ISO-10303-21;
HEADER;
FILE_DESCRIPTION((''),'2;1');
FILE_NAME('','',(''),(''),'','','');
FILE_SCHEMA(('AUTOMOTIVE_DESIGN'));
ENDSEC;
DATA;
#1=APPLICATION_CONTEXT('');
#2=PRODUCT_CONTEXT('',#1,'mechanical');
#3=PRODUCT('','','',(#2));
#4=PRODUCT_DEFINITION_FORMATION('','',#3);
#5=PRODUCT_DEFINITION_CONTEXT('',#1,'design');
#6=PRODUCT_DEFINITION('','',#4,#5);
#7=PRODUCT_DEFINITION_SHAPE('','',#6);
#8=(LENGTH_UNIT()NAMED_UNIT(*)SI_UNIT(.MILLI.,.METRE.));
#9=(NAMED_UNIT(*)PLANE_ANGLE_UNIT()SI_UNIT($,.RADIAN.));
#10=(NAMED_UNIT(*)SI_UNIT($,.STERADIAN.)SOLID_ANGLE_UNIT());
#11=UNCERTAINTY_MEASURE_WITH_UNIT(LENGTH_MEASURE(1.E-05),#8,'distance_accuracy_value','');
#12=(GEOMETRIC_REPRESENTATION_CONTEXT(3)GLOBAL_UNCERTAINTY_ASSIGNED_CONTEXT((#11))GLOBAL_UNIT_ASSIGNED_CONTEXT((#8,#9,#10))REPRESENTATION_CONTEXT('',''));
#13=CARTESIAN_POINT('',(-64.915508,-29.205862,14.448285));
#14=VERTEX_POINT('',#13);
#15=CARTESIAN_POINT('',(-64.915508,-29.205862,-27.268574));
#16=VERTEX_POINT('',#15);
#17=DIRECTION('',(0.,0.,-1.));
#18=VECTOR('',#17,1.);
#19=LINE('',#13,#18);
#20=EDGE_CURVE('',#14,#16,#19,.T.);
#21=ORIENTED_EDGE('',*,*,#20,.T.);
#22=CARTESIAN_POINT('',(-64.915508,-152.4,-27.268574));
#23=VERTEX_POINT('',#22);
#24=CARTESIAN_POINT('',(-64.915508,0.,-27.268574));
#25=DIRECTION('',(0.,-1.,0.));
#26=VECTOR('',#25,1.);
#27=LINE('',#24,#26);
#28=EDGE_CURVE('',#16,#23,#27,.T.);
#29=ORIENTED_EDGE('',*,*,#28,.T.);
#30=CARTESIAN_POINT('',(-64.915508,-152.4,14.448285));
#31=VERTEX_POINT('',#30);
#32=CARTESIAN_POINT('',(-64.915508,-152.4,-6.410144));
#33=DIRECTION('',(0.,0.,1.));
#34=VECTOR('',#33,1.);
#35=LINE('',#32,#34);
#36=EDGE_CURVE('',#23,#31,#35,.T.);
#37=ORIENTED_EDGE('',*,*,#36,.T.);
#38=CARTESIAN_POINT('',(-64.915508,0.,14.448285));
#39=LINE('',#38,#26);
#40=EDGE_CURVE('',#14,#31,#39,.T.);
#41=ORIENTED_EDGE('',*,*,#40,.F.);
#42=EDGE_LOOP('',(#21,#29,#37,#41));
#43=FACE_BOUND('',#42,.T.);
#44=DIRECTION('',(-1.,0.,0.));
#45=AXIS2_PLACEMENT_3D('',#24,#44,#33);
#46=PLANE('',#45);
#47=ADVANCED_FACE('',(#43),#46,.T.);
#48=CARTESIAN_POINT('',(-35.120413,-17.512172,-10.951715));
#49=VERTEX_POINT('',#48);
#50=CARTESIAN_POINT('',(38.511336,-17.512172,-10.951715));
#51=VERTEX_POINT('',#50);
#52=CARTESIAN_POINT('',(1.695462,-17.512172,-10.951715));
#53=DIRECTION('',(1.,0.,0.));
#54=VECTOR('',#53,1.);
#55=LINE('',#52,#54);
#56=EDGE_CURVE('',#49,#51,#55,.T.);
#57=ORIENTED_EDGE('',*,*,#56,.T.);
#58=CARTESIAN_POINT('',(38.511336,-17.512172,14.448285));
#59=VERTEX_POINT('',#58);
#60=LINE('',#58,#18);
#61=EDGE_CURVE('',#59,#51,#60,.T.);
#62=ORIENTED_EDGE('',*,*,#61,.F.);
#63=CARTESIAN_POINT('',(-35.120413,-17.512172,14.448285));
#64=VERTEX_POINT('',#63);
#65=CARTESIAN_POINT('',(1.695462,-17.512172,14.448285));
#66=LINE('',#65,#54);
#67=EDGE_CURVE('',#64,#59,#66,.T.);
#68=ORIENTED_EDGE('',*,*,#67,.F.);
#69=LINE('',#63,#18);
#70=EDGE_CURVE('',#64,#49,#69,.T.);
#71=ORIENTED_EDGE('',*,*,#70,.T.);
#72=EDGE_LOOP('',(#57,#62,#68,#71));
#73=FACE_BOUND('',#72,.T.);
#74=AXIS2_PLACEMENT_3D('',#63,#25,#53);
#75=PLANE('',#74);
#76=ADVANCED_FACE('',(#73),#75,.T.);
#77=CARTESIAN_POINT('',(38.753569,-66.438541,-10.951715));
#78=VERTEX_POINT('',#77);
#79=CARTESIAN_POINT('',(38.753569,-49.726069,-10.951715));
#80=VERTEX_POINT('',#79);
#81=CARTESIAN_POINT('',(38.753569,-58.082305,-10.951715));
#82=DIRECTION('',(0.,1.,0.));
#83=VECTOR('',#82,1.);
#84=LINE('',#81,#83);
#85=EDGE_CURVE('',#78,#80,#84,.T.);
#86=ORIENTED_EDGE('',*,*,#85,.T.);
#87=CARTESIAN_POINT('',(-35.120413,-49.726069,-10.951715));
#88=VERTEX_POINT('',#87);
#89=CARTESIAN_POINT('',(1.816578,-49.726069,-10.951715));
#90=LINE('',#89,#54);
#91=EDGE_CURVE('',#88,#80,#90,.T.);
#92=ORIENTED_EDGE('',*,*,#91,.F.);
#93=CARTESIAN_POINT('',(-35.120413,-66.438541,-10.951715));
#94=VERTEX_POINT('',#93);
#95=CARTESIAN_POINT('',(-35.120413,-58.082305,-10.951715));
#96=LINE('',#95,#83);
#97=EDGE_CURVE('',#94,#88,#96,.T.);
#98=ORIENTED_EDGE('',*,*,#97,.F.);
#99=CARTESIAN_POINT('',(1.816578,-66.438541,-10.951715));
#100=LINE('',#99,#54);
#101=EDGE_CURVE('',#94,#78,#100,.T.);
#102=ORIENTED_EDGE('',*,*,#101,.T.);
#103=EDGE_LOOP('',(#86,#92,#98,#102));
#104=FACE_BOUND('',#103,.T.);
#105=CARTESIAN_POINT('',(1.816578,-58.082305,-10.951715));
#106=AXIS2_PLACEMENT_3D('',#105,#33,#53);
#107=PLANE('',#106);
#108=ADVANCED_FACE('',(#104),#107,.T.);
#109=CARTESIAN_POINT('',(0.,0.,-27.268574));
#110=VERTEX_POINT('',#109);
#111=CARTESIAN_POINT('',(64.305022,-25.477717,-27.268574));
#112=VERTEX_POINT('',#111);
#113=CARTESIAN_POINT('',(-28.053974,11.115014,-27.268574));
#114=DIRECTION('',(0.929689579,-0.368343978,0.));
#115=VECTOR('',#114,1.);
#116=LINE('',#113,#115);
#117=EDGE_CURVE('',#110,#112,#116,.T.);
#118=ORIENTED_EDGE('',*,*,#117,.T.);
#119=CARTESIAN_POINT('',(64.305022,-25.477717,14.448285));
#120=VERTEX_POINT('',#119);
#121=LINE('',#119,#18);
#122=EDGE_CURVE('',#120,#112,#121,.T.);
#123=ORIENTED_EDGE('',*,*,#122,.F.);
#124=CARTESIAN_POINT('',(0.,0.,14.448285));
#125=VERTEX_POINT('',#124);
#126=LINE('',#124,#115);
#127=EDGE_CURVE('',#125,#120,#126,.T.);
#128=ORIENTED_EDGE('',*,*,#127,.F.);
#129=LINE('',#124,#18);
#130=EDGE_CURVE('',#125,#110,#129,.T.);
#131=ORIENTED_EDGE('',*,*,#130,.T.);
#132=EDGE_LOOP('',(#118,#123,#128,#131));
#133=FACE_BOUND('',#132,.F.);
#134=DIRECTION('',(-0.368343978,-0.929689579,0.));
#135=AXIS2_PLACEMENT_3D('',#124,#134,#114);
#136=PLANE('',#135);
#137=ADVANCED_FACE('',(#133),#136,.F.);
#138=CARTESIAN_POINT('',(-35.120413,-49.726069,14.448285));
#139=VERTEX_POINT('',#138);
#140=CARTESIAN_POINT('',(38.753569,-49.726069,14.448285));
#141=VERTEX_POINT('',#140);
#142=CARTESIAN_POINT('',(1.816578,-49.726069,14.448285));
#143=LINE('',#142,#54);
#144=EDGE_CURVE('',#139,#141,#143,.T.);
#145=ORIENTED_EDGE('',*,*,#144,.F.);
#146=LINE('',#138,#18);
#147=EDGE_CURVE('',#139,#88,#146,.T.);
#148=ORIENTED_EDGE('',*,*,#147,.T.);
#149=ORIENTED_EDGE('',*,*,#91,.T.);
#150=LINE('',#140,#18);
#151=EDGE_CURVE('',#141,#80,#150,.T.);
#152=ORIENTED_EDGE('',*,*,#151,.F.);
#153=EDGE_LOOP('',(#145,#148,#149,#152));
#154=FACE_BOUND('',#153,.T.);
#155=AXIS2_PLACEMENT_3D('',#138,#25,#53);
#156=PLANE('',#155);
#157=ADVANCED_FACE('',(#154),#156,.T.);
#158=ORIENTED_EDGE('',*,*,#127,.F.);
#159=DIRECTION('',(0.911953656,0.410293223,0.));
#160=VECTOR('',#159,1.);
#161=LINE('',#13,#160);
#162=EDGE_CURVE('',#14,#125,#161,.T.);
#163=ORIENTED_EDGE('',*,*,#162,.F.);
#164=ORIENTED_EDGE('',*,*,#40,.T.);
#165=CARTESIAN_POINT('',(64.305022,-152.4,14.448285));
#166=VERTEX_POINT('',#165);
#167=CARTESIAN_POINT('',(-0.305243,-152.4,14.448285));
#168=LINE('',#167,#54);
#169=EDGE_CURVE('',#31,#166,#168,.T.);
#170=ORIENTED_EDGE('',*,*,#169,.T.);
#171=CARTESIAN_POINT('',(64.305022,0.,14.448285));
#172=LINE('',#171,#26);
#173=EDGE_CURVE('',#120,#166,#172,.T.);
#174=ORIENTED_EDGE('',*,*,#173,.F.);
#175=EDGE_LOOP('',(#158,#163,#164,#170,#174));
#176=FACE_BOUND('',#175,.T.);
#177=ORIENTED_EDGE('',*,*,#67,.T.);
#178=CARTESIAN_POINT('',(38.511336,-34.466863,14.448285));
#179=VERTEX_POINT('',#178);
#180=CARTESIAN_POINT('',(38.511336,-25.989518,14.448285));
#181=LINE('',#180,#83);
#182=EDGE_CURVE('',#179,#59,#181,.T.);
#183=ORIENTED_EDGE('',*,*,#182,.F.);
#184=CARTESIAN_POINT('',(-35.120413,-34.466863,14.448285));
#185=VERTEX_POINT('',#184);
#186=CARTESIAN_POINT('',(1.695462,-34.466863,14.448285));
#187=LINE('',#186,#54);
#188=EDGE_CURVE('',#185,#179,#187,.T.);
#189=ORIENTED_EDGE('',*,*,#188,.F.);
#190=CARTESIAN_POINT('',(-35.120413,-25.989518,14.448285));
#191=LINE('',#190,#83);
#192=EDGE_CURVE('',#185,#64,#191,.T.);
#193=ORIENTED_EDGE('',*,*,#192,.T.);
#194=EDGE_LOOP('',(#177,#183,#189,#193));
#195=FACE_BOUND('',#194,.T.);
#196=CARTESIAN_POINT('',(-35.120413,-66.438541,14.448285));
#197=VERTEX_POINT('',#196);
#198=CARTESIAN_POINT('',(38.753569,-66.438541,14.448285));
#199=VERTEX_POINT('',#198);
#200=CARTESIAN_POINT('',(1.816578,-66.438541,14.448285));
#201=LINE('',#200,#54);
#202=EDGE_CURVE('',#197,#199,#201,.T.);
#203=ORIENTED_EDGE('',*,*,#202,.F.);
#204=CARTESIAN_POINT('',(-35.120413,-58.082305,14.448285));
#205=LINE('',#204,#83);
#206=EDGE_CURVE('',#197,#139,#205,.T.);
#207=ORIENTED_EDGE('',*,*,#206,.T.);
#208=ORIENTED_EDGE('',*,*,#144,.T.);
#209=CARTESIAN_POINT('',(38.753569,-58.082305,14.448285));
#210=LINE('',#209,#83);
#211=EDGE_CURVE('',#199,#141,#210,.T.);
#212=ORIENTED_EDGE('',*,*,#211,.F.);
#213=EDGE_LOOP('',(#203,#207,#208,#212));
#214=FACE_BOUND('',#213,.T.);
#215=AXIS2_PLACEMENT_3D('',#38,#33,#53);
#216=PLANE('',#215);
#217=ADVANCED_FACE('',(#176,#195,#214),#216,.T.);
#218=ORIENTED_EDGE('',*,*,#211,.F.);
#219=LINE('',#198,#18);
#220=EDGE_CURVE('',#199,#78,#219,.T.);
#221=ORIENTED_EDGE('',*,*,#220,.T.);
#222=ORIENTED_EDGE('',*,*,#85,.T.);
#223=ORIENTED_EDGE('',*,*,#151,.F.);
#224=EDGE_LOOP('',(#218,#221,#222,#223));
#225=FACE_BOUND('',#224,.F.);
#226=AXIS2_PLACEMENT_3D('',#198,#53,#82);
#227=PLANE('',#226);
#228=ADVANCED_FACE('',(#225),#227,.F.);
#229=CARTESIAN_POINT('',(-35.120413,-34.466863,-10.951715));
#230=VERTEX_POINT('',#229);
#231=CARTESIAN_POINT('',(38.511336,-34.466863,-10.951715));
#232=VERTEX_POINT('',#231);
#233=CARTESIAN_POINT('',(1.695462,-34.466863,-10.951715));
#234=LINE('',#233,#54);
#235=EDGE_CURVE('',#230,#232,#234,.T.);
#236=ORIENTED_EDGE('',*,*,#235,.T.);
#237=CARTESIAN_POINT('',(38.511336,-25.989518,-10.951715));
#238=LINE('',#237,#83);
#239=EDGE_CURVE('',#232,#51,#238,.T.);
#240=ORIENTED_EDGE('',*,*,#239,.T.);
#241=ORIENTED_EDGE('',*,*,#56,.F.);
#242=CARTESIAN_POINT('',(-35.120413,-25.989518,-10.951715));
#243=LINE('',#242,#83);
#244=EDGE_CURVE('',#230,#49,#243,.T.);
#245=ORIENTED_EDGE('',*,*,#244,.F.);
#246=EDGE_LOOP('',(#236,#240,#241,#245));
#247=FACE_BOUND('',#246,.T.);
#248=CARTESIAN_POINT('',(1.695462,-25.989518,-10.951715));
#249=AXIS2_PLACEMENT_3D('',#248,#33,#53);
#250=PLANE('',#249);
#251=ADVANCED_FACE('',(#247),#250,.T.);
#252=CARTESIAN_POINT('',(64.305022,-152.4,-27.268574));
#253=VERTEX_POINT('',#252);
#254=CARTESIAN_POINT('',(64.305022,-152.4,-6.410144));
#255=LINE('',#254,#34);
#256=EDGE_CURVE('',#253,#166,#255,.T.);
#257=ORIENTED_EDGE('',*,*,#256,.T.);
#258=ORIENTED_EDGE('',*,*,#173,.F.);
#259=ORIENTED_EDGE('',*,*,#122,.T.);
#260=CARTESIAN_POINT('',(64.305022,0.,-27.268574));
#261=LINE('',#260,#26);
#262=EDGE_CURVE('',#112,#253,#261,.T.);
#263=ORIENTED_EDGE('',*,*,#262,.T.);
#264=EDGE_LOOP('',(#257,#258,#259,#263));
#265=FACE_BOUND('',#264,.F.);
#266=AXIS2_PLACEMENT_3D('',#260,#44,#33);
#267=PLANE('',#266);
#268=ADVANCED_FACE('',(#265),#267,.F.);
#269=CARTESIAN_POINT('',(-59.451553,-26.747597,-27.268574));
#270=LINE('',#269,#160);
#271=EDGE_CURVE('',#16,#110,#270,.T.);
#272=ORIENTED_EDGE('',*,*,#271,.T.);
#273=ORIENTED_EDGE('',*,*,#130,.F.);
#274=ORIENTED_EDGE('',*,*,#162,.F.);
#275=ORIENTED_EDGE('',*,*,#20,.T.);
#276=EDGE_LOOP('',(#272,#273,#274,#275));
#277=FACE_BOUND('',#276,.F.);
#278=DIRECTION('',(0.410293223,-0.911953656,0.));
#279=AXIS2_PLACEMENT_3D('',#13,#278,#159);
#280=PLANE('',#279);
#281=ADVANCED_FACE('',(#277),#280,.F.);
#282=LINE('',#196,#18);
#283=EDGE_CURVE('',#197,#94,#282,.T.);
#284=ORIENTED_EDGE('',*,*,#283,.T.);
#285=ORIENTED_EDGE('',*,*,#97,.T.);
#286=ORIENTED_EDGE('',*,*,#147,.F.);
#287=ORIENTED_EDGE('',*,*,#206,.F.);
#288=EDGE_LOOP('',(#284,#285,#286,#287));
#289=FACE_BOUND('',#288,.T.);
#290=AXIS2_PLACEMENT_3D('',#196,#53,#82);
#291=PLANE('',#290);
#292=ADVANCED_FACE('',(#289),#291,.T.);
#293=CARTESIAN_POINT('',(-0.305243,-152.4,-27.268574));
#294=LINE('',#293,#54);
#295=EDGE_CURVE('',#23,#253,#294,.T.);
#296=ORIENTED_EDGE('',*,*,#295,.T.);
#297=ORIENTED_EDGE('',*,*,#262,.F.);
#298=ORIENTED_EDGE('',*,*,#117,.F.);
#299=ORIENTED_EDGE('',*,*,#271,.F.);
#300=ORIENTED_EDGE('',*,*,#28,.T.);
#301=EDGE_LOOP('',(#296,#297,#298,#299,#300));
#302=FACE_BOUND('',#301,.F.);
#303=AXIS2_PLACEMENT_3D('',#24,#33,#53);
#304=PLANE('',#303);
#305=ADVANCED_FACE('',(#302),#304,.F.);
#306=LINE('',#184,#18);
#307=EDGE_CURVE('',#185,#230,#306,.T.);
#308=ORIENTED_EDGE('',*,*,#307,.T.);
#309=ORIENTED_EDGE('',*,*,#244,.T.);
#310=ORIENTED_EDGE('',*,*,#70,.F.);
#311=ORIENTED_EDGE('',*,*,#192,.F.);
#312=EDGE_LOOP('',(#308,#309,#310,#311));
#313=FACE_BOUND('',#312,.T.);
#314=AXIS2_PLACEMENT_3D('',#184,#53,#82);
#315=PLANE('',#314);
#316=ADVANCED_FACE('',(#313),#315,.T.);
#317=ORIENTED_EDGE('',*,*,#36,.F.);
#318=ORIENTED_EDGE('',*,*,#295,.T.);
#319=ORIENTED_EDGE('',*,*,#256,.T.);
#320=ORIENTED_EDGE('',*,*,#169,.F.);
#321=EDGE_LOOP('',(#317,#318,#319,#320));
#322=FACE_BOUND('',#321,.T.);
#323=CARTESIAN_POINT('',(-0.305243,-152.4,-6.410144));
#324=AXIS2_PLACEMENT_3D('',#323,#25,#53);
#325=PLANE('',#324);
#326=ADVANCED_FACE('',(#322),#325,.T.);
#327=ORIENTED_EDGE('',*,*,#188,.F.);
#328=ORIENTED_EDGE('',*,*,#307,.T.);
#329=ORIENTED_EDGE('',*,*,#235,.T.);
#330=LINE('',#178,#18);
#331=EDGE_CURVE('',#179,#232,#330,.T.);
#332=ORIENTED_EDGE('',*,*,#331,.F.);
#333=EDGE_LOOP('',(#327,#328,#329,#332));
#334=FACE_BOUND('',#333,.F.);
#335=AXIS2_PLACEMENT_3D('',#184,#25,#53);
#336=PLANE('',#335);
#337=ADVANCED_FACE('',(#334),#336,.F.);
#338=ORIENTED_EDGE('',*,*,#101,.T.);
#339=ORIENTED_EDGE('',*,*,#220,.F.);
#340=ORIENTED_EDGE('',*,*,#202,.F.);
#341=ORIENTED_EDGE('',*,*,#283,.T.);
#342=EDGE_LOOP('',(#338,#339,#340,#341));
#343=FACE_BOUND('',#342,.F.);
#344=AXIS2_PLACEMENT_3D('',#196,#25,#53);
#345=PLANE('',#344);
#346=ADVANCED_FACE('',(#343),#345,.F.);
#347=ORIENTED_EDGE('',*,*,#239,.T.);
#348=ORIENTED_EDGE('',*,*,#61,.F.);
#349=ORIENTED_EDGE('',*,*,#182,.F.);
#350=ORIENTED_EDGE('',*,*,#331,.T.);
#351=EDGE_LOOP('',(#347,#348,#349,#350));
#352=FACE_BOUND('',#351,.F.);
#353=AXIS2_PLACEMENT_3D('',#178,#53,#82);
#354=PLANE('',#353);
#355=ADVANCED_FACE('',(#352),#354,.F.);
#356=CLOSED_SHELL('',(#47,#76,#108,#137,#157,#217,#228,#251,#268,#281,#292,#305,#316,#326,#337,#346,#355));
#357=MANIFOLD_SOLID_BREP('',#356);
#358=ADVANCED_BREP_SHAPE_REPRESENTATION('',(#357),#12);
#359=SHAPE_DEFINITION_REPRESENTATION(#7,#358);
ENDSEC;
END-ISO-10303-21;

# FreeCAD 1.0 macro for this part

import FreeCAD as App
import Part
import Sketcher

V = App.Vector
Q = App.Units.Quantity


def add_polygon(sketch, points):
    """Adds a closed chain of lines whose ends are joined by coincident constraints."""
    first, n = sketch.GeometryCount, len(points)
    for a, b in zip(points, points[1:] + points[:1]):
        sketch.addGeometry(Part.LineSegment(App.Vector(*a, 0), App.Vector(*b, 0)), False)
    for i in range(n):
        sketch.addConstraint(Sketcher.Constraint("Coincident", first + i, 2, first + (i + 1) % n, 1))

doc = App.newDocument("Part")
body = doc.addObject("PartDesign::Body", "Body")

sketch1 = doc.addObject("Sketcher::SketchObject", "Sketch")
body.addObject(sketch1)
sketch1.AttachmentSupport = (doc.XZ_Plane, [""])
sketch1.MapMode = "FlatFace"
add_polygon(sketch1, [(-64.915508, 14.448285), (-64.915508, -27.268574), (64.305022, -27.268574), (64.305022, 14.448285)])
sketch1.addConstraint([
    Sketcher.Constraint("Vertical", 0),
    Sketcher.Constraint("Horizontal", 1),
    Sketcher.Constraint("Vertical", 2),
    Sketcher.Constraint("Horizontal", 3),
    Sketcher.Constraint("DistanceX", 1, 1, 1, 2, 129.22053),
    Sketcher.Constraint("DistanceY", 0, 2, 0, 1, 41.716859),
    Sketcher.Constraint("DistanceX", 0, 2, -1, 1, 64.915508),
    Sketcher.Constraint("DistanceY", 0, 2, -1, 1, 27.268574),
])
pad1 = doc.addObject("PartDesign::Pad", "Pad")
body.addObject(pad1)
pad1.Profile = sketch1
pad1.Length = Q("6 in")

sketch2 = doc.addObject("Sketcher::SketchObject", "Sketch001")
body.addObject(sketch2)
sketch2.AttachmentSupport = (doc.XY_Plane, [""])
sketch2.MapMode = "FlatFace"
sketch2.AttachmentOffset = App.Placement(V(0, 0, 14.448285), App.Rotation())
add_polygon(sketch2, [(-35.120413, -17.512172), (-35.120413, -34.466863), (38.511336, -34.466863), (38.511336, -17.512172)])
add_polygon(sketch2, [(-35.120413, -49.726069), (-35.120413, -66.438541), (38.753569, -66.438541), (38.753569, -49.726069)])
sketch2.addConstraint([
    Sketcher.Constraint("Vertical", 0),
    Sketcher.Constraint("Horizontal", 1),
    Sketcher.Constraint("Vertical", 2),
    Sketcher.Constraint("Horizontal", 3),
    Sketcher.Constraint("Vertical", 4),
    Sketcher.Constraint("Horizontal", 5),
    Sketcher.Constraint("Vertical", 6),
    Sketcher.Constraint("Horizontal", 7),
    Sketcher.Constraint("Vertical", 3, 2, 4, 2),
    Sketcher.Constraint("DistanceX", 1, 1, 1, 2, 73.631749),
    Sketcher.Constraint("DistanceX", 5, 1, 5, 2, 73.873982),
    Sketcher.Constraint("DistanceY", 0, 2, 0, 1, 16.95469),
    Sketcher.Constraint("DistanceY", 4, 2, 4, 1, 16.712472),
    Sketcher.Constraint("DistanceY", 4, 2, -1, 1, 66.438541),
    Sketcher.Constraint("DistanceX", -1, 1, 5, 2, 38.753569),
    Sketcher.Constraint("DistanceY", 4, 2, 0, 2, 31.971678),
])
pocket1 = doc.addObject("PartDesign::Pocket", "Pocket")
body.addObject(pocket1)
pocket1.Profile = sketch2
pocket1.Length = Q("1 in")

sketch3 = doc.addObject("Sketcher::SketchObject", "Sketch002")
body.addObject(sketch3)
sketch3.AttachmentSupport = (doc.XY_Plane, [""])
sketch3.MapMode = "FlatFace"
sketch3.AttachmentOffset = App.Placement(V(0, 0, 14.448285), App.Rotation())
add_polygon(sketch3, [(64.305022, 0), (0, 0), (64.305022, -25.477717)])
add_polygon(sketch3, [(-64.915508, 0), (-64.915508, -29.205862), (0, 0)])
sketch3.addConstraint([
    Sketcher.Constraint("Horizontal", 0),
    Sketcher.Constraint("Vertical", 2),
    Sketcher.Constraint("Vertical", 3),
    Sketcher.Constraint("Horizontal", 5),
    Sketcher.Constraint("Coincident", 0, 2, -1, 1),
    Sketcher.Constraint("Coincident", 4, 2, -1, 1),
    Sketcher.Constraint("DistanceX", 5, 2, 5, 1, 64.915508),
    Sketcher.Constraint("DistanceX", 0, 2, 0, 1, 64.305022),
    Sketcher.Constraint("DistanceY", 2, 1, 2, 2, 25.477717),
    Sketcher.Constraint("DistanceY", 3, 2, 3, 1, 29.205862),
])
pocket2 = doc.addObject("PartDesign::Pocket", "Pocket001")
body.addObject(pocket2)
pocket2.Profile = sketch3
pocket2.Type = "ThroughAll"

doc.recompute()
